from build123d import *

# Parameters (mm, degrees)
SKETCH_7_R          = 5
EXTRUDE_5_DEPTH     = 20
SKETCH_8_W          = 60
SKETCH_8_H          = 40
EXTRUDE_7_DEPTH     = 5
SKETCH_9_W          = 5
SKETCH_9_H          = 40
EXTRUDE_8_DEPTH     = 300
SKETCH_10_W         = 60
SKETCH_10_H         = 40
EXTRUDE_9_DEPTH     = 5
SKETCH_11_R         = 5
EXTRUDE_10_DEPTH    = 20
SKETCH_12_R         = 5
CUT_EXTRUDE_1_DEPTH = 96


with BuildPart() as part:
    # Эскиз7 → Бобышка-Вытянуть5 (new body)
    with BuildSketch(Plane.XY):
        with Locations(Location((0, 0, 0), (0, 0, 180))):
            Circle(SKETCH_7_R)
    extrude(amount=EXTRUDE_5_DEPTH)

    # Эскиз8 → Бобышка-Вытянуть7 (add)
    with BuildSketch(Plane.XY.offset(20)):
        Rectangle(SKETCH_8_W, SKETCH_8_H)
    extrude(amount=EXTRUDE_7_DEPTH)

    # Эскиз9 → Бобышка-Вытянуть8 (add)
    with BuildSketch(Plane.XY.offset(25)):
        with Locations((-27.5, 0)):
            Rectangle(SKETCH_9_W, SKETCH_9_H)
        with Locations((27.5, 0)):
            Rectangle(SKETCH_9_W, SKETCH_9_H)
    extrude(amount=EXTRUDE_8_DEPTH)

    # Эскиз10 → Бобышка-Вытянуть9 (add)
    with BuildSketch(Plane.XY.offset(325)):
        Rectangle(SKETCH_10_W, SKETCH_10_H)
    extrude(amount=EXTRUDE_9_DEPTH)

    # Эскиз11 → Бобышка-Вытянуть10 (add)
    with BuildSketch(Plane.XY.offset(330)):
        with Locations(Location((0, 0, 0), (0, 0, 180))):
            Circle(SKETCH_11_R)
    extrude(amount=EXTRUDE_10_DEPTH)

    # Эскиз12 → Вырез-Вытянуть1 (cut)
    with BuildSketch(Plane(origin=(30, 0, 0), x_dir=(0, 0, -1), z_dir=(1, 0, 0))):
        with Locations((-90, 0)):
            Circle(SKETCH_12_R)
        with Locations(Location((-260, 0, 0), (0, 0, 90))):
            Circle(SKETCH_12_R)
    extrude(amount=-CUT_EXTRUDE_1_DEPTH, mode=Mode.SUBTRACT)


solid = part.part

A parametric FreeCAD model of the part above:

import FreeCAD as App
import Part
import Sketcher
from FreeCAD import Vector
Q = App.Units.Quantity


def add_polygon(sketch, points):
    """Adds a closed chain of lines whose ends are joined by coincident constraints."""
    first, n = sketch.GeometryCount, len(points)
    for a, b in zip(points, points[1:] + points[:1]):
        sketch.addGeometry(Part.LineSegment(App.Vector(*a, 0), App.Vector(*b, 0)), False)
    for i in range(n):
        sketch.addConstraint(Sketcher.Constraint("Coincident", first + i, 2, first + (i + 1) % n, 1))

doc = App.newDocument("Part")
body = doc.addObject("PartDesign::Body", "Body")

# Sketch on XY plane
sketch1 = doc.addObject("Sketcher::SketchObject", "Sketch")
body.addObject(sketch1)
sketch1.AttachmentSupport = (doc.XY_Plane, [""])
sketch1.MapMode = "FlatFace"
sketch1.addGeometry(Part.Circle(Vector(0, 0, 0), Vector(0, 0, 1), 5), False)
sketch1.addConstraint(Sketcher.Constraint("Coincident", 0, 3, -1, 1))
sketch1.addConstraint(Sketcher.Constraint("Diameter", 0, Q("10 mm")))
pad1 = doc.addObject("PartDesign::Pad", "Pad")
body.addObject(pad1)
pad1.Profile = sketch1
pad1.Length = 20

# Sketch on XY plane
sketch2 = doc.addObject("Sketcher::SketchObject", "Sketch001")
body.addObject(sketch2)
sketch2.AttachmentSupport = (doc.XY_Plane, [""])
sketch2.MapMode = "FlatFace"
sketch2.AttachmentOffset = App.Placement(Vector(0, 0, 20), App.Rotation())
add_polygon(sketch2, [(-30, 20), (-30, -20), (30, -20), (30, 20)])  # lines 0-3
sketch2.addConstraint(Sketcher.Constraint("Vertical", 0))
sketch2.addConstraint(Sketcher.Constraint("Horizontal", 1))
sketch2.addConstraint(Sketcher.Constraint("Vertical", 2))
sketch2.addConstraint(Sketcher.Constraint("Horizontal", 3))
sketch2.addConstraint(Sketcher.Constraint("Symmetric", 0, 2, 2, 2, -1, 1))
sketch2.addConstraint(Sketcher.Constraint("DistanceX", 1, 1, 1, 2, Q("60 mm")))
sketch2.addConstraint(Sketcher.Constraint("DistanceY", 0, 2, 0, 1, Q("40 mm")))
pad2 = doc.addObject("PartDesign::Pad", "Pad001")
body.addObject(pad2)
pad2.Profile = sketch2
pad2.Length = 5

# Sketch on XY plane
sketch3 = doc.addObject("Sketcher::SketchObject", "Sketch002")
body.addObject(sketch3)
sketch3.AttachmentSupport = (doc.XY_Plane, [""])
sketch3.MapMode = "FlatFace"
sketch3.AttachmentOffset = App.Placement(Vector(0, 0, 25), App.Rotation())
add_polygon(sketch3, [(-30, 20), (-30, -20), (-25, -20), (-25, 20)])  # lines 0-3
add_polygon(sketch3, [(25, 20), (25, -20), (30, -20), (30, 20)])  # lines 4-7
sketch3.addConstraint(Sketcher.Constraint("Vertical", 0))
sketch3.addConstraint(Sketcher.Constraint("Horizontal", 1))
sketch3.addConstraint(Sketcher.Constraint("Vertical", 2))
sketch3.addConstraint(Sketcher.Constraint("Horizontal", 3))
sketch3.addConstraint(Sketcher.Constraint("Vertical", 4))
sketch3.addConstraint(Sketcher.Constraint("Horizontal", 5))
sketch3.addConstraint(Sketcher.Constraint("Vertical", 6))
sketch3.addConstraint(Sketcher.Constraint("Horizontal", 7))
sketch3.addConstraint(Sketcher.Constraint("Symmetric", 2, 2, 4, 2, -1, 1))
sketch3.addConstraint(Sketcher.Constraint("Symmetric", 0, 2, 6, 2, -1, 1))
sketch3.addConstraint(Sketcher.Constraint("Horizontal", 1, 2, 4, 2))
sketch3.addConstraint(Sketcher.Constraint("DistanceX", 1, 1, 1, 2, Q("5 mm")))
sketch3.addConstraint(Sketcher.Constraint("DistanceY", 0, 2, 0, 1, Q("40 mm")))
sketch3.addConstraint(Sketcher.Constraint("DistanceX", 0, 2, -1, 1, Q("30 mm")))
pad3 = doc.addObject("PartDesign::Pad", "Pad002")
body.addObject(pad3)
pad3.Profile = sketch3
pad3.Length = 300

# Sketch on XY plane
sketch4 = doc.addObject("Sketcher::SketchObject", "Sketch003")
body.addObject(sketch4)
sketch4.AttachmentSupport = (doc.XY_Plane, [""])
sketch4.MapMode = "FlatFace"
sketch4.AttachmentOffset = App.Placement(Vector(0, 0, 325), App.Rotation())
add_polygon(sketch4, [(-30, 20), (-30, -20), (30, -20), (30, 20)])  # lines 0-3
sketch4.addConstraint(Sketcher.Constraint("Vertical", 0))
sketch4.addConstraint(Sketcher.Constraint("Horizontal", 1))
sketch4.addConstraint(Sketcher.Constraint("Vertical", 2))
sketch4.addConstraint(Sketcher.Constraint("Horizontal", 3))
sketch4.addConstraint(Sketcher.Constraint("Symmetric", 0, 2, 2, 2, -1, 1))
sketch4.addConstraint(Sketcher.Constraint("DistanceX", 1, 1, 1, 2, Q("60 mm")))
sketch4.addConstraint(Sketcher.Constraint("DistanceY", 0, 2, 0, 1, Q("40 mm")))
pad4 = doc.addObject("PartDesign::Pad", "Pad003")
body.addObject(pad4)
pad4.Profile = sketch4
pad4.Length = 5

# Sketch on XY plane
sketch5 = doc.addObject("Sketcher::SketchObject", "Sketch004")
body.addObject(sketch5)
sketch5.AttachmentSupport = (doc.XY_Plane, [""])
sketch5.MapMode = "FlatFace"
sketch5.AttachmentOffset = App.Placement(Vector(0, 0, 330), App.Rotation())
sketch5.addGeometry(Part.Circle(Vector(0, 0, 0), Vector(0, 0, 1), 5), False)
sketch5.addConstraint(Sketcher.Constraint("Coincident", 0, 3, -1, 1))
sketch5.addConstraint(Sketcher.Constraint("Diameter", 0, Q("10 mm")))
pad5 = doc.addObject("PartDesign::Pad", "Pad004")
body.addObject(pad5)
pad5.Profile = sketch5
pad5.Length = 20

# Sketch on YZ plane
sketch6 = doc.addObject("Sketcher::SketchObject", "Sketch005")
body.addObject(sketch6)
sketch6.AttachmentSupport = (doc.YZ_Plane, [""])
sketch6.MapMode = "FlatFace"
sketch6.AttachmentOffset = App.Placement(Vector(0, 0, 30), App.Rotation())
sketch6.addGeometry(Part.Circle(Vector(0, 90, 0), Vector(0, 0, 1), 5), False)
sketch6.addGeometry(Part.Circle(Vector(0, 260, 0), Vector(0, 0, 1), 5), False)
sketch6.addConstraint(Sketcher.Constraint("Equal", 0, 1))
sketch6.addConstraint(Sketcher.Constraint("PointOnObject", 0, 3, -2))
sketch6.addConstraint(Sketcher.Constraint("PointOnObject", 1, 3, -2))
sketch6.addConstraint(Sketcher.Constraint("Diameter", 0, Q("10 mm")))
sketch6.addConstraint(Sketcher.Constraint("DistanceY", -1, 1, 0, 3, Q("90 mm")))
sketch6.addConstraint(Sketcher.Constraint("DistanceY", -1, 1, 1, 3, Q("260 mm")))
pocket1 = doc.addObject("PartDesign::Pocket", "Pocket")
body.addObject(pocket1)
pocket1.Profile = sketch6
pocket1.Length = 96

doc.recompute()
